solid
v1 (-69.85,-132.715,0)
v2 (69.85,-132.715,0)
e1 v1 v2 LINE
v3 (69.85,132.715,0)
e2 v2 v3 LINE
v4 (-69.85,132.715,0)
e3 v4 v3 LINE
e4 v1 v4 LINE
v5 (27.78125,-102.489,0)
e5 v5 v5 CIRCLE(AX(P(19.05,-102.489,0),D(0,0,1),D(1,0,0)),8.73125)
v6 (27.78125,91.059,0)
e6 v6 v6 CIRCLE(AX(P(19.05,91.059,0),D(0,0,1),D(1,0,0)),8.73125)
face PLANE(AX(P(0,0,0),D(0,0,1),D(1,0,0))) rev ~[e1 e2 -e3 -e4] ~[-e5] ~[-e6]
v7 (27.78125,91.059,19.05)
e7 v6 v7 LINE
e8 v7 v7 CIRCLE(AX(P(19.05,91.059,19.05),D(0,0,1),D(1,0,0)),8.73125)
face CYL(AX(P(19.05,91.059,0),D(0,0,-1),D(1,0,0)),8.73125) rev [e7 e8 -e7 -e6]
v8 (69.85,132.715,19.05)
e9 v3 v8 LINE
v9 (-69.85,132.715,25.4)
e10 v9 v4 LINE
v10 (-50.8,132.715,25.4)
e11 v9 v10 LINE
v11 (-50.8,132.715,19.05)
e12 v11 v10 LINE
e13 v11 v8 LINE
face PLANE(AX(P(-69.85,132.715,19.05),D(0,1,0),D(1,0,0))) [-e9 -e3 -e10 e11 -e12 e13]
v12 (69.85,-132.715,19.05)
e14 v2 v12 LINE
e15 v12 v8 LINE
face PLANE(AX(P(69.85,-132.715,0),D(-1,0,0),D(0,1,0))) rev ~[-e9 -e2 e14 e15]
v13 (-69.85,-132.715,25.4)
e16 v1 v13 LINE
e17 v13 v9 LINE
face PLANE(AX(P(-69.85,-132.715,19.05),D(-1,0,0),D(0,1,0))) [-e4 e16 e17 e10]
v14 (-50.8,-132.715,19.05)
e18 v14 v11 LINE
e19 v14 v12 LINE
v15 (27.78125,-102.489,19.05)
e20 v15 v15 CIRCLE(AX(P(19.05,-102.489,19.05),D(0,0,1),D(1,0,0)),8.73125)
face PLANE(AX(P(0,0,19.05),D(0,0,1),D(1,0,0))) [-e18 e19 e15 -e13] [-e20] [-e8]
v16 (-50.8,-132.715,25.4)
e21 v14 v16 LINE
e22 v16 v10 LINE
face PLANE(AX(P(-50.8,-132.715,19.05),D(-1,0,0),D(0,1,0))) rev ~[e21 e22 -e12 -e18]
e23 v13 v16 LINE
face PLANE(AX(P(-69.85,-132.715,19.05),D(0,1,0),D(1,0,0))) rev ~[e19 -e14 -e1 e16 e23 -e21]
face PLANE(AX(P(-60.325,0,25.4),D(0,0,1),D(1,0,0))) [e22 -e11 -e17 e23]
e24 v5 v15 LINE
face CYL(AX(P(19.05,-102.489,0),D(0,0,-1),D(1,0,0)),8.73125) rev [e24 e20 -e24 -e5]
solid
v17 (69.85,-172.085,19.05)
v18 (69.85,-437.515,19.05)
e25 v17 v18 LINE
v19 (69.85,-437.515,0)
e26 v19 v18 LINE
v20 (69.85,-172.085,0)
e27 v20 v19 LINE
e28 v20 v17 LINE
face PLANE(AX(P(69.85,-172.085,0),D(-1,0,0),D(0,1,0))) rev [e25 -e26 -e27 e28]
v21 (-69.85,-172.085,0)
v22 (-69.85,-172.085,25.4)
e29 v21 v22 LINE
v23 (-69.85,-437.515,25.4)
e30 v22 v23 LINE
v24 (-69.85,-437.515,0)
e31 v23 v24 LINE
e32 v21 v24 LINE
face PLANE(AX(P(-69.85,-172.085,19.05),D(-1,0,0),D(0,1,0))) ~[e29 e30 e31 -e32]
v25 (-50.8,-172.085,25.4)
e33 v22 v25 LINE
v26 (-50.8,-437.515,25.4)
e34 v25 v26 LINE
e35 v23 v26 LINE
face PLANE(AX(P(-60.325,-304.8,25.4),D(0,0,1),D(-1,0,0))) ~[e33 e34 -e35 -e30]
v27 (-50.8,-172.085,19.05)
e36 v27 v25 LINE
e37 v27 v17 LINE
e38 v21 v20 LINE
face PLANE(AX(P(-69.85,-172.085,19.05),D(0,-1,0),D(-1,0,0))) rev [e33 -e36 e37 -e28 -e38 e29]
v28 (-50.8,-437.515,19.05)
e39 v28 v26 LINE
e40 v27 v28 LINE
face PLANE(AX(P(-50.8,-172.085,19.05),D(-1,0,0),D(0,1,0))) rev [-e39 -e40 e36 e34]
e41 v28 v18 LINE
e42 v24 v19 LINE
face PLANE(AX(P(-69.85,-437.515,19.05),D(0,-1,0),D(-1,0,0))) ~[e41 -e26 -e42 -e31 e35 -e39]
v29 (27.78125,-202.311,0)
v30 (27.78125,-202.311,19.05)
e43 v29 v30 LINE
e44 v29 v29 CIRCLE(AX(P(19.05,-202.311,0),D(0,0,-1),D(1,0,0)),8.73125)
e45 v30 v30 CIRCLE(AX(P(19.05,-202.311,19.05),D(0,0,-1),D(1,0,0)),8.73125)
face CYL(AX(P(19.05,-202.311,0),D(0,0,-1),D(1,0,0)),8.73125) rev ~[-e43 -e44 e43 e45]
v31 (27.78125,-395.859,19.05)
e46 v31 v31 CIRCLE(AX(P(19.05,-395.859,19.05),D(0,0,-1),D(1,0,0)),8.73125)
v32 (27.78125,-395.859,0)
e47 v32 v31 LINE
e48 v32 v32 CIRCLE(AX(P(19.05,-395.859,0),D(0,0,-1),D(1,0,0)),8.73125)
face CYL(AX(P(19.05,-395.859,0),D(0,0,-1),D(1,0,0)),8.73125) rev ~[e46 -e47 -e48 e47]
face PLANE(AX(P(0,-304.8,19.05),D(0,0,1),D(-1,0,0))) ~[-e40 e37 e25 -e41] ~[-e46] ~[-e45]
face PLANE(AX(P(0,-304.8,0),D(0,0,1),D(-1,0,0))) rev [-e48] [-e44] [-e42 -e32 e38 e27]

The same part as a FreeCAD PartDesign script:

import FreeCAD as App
import Part
import Sketcher
from FreeCAD import Vector
Q = App.Units.Quantity

doc = App.newDocument("Part")
params = doc.addObject("Spreadsheet::Sheet", "Params")
for row, (alias, value) in enumerate([
    ("sketch1_diameter", "0.6875 in"),
    ("sketch1_width", "5.5 in"),
    ("sketch1_height", "10.45 in"),
    ("pad1_length", "0.75 in"),
    ("sketch2_width", "0.75 in"),
    ("sketch2_height", "10.45 in"),
    ("pad2_length", "0.25 in"),
], start=1):
    params.set(f"A{row}", alias)
    params.set(f"B{row}", "=" + value)
    params.setAlias(f"B{row}", alias)

body = doc.addObject("PartDesign::Body", "Body")

sketch1 = body.newObject("Sketcher::SketchObject", "Sketch")
sketch1.AttachmentSupport = (doc.getObject("XY_Plane"), [""])
sketch1.MapMode = "FlatFace"
sketch1.addGeometry(Part.LineSegment(Vector(-70, 133, 0), Vector(-70, -133, 0)), False)
sketch1.addGeometry(Part.LineSegment(Vector(-70, -133, 0), Vector(70, -133, 0)), False)
sketch1.addGeometry(Part.LineSegment(Vector(70, -133, 0), Vector(70, 133, 0)), False)
sketch1.addGeometry(Part.LineSegment(Vector(70, 133, 0), Vector(-70, 133, 0)), False)
sketch1.addGeometry(Part.Circle(Vector(19, -102, 0), Vector(0, 0, 1), 9), False)
sketch1.addGeometry(Part.Circle(Vector(19, 91, 0), Vector(0, 0, 1), 9), False)
sketch1.addConstraint(Sketcher.Constraint("Coincident", 0, 2, 1, 1))
sketch1.addConstraint(Sketcher.Constraint("Coincident", 1, 2, 2, 1))
sketch1.addConstraint(Sketcher.Constraint("Coincident", 2, 2, 3, 1))
sketch1.addConstraint(Sketcher.Constraint("Coincident", 3, 2, 0, 1))
sketch1.addConstraint(Sketcher.Constraint("Vertical", 0))
sketch1.addConstraint(Sketcher.Constraint("Horizontal", 1))
sketch1.addConstraint(Sketcher.Constraint("Vertical", 2))
sketch1.addConstraint(Sketcher.Constraint("Horizontal", 3))
sketch1.addConstraint(Sketcher.Constraint("Equal", 4, 5))
sketch1.addConstraint(Sketcher.Constraint("Symmetric", 0, 2, 2, 2, -1, 1))
sketch1.addConstraint(Sketcher.Constraint("Vertical", 4, 3, 5, 3))
sketch1.addConstraint(Sketcher.Constraint("Diameter", 4, Q("0.6875 in")))
sketch1.addConstraint(Sketcher.Constraint("DistanceX", 1, 1, 1, 2, Q("5.5 in")))
sketch1.addConstraint(Sketcher.Constraint("DistanceX", 4, 3, 1, 2, Q("2 in")))
sketch1.addConstraint(Sketcher.Constraint("DistanceY", 0, 2, 0, 1, Q("10.45 in")))
sketch1.addConstraint(Sketcher.Constraint("DistanceY", 4, 3, 5, 3, Q("7.62 in")))
sketch1.addConstraint(Sketcher.Constraint("DistanceY", 0, 2, 4, 3, Q("1.19 in")))
sketch1.setExpression("Constraints[11]", "Params.sketch1_diameter")
sketch1.setExpression("Constraints[12]", "Params.sketch1_width")
sketch1.setExpression("Constraints[14]", "Params.sketch1_height")
pad1 = body.newObject("PartDesign::Pad", "Pad")
pad1.Profile = sketch1
pad1.setExpression("Length", "Params.pad1_length")

sketch2 = body.newObject("Sketcher::SketchObject", "Sketch001")
sketch2.AttachmentSupport = (doc.getObject("XY_Plane"), [""])
sketch2.MapMode = "FlatFace"
sketch2.AttachmentOffset = App.Placement(Vector(0, 0, 0.75 * 25.4), App.Rotation())
sketch2.addGeometry(Part.LineSegment(Vector(-70, 133, 0), Vector(-70, -133, 0)), False)
sketch2.addGeometry(Part.LineSegment(Vector(-70, -133, 0), Vector(-51, -133, 0)), False)
sketch2.addGeometry(Part.LineSegment(Vector(-51, -133, 0), Vector(-51, 133, 0)), False)
sketch2.addGeometry(Part.LineSegment(Vector(-51, 133, 0), Vector(-70, 133, 0)), False)
sketch2.addConstraint(Sketcher.Constraint("Coincident", 0, 2, 1, 1))
sketch2.addConstraint(Sketcher.Constraint("Coincident", 1, 2, 2, 1))
sketch2.addConstraint(Sketcher.Constraint("Coincident", 2, 2, 3, 1))
sketch2.addConstraint(Sketcher.Constraint("Coincident", 3, 2, 0, 1))
sketch2.addConstraint(Sketcher.Constraint("Vertical", 0))
sketch2.addConstraint(Sketcher.Constraint("Horizontal", 1))
sketch2.addConstraint(Sketcher.Constraint("Vertical", 2))
sketch2.addConstraint(Sketcher.Constraint("Horizontal", 3))
sketch2.addConstraint(Sketcher.Constraint("DistanceX", 1, 2, -1, 1, Q("2 in")))
sketch2.addConstraint(Sketcher.Constraint("DistanceX", 1, 1, 1, 2, Q("0.75 in")))
sketch2.addConstraint(Sketcher.Constraint("DistanceY", 0, 2, 0, 1, Q("10.45 in")))
sketch2.addConstraint(Sketcher.Constraint("DistanceY", 0, 2, -1, 1, Q("5.225 in")))
sketch2.setExpression("Constraints[9]", "Params.sketch2_width")
sketch2.setExpression("Constraints[10]", "Params.sketch2_height")
pad2 = body.newObject("PartDesign::Pad", "Pad001")
pad2.Profile = sketch2
pad2.setExpression("Length", "Params.pad2_length")
body2 = doc.addObject("PartDesign::Body", "Body001")
doc.recompute()

mirroring = doc.addObject("Part::Mirroring", "Mirroring")
mirroring.Source = body
mirroring.Base = Vector(0, -152.4, 0)
mirroring.Normal = Vector(0, -1, 0)
body2.BaseFeature = mirroring
doc.recompute()
mirroring.Visibility = False

doc.recompute()
